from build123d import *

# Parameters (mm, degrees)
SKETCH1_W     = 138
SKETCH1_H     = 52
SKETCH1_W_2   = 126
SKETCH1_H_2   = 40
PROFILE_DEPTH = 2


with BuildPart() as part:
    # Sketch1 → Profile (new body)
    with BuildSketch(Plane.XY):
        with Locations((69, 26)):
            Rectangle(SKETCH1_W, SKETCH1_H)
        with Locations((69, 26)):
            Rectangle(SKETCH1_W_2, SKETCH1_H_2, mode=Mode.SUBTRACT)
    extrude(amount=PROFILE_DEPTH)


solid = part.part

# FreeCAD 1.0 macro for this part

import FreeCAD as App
import Part
import Sketcher


def add_polygon(sketch, points):
    """Adds a closed chain of lines whose ends are joined by coincident constraints."""
    first, n = sketch.GeometryCount, len(points)
    for a, b in zip(points, points[1:] + points[:1]):
        sketch.addGeometry(Part.LineSegment(App.Vector(*a, 0), App.Vector(*b, 0)), False)
    for i in range(n):
        sketch.addConstraint(Sketcher.Constraint("Coincident", first + i, 2, first + (i + 1) % n, 1))

doc = App.newDocument("Part")
params = doc.addObject("Spreadsheet::Sheet", "Params")
for row, (alias, value) in enumerate([
    ("sketch1_width", "138 mm"),
    ("sketch1_width2", "126 mm"),
    ("sketch1_height", "52 mm"),
    ("sketch1_height2", "40 mm"),
    ("pad1_length", "2 mm"),
], start=1):
    params.set(f"A{row}", alias)
    params.set(f"B{row}", "=" + value)
    params.setAlias(f"B{row}", alias)

body = doc.addObject("PartDesign::Body", "Body")

sketch1 = body.newObject("Sketcher::SketchObject", "Sketch")
sketch1.AttachmentSupport = (doc.getObject("XY_Plane"), [""])
sketch1.MapMode = "FlatFace"
add_polygon(sketch1, [(0, 52), (0, 0), (138, 0), (138, 52)])
add_polygon(sketch1, [(132, 6), (6, 6), (6, 46), (132, 46)])
sketch1.addConstraint(Sketcher.Constraint("Vertical", 0))
sketch1.addConstraint(Sketcher.Constraint("Horizontal", 1))
sketch1.addConstraint(Sketcher.Constraint("Vertical", 2))
sketch1.addConstraint(Sketcher.Constraint("Horizontal", 3))
sketch1.addConstraint(Sketcher.Constraint("Horizontal", 4))
sketch1.addConstraint(Sketcher.Constraint("Vertical", 5))
sketch1.addConstraint(Sketcher.Constraint("Horizontal", 6))
sketch1.addConstraint(Sketcher.Constraint("Vertical", 7))
sketch1.addConstraint(Sketcher.Constraint("Coincident", 0, 2, -1, 1))
sketch1.addConstraint(Sketcher.Constraint("DistanceX", 1, 1, 1, 2, 138.0))
sketch1.addConstraint(Sketcher.Constraint("DistanceX", 4, 2, 4, 1, 126.0))
sketch1.addConstraint(Sketcher.Constraint("DistanceY", 0, 2, 0, 1, 52.0))
sketch1.addConstraint(Sketcher.Constraint("DistanceY", 5, 1, 5, 2, 40.0))
sketch1.addConstraint(Sketcher.Constraint("DistanceX", -1, 1, 4, 2, 6.0))
sketch1.addConstraint(Sketcher.Constraint("DistanceY", -1, 1, 4, 2, 6.0))
sketch1.setExpression("Constraints[17]", "Params.sketch1_width")
sketch1.setExpression("Constraints[18]", "Params.sketch1_width2")
sketch1.setExpression("Constraints[19]", "Params.sketch1_height")
sketch1.setExpression("Constraints[20]", "Params.sketch1_height2")
pad1 = body.newObject("PartDesign::Pad", "Pad")
pad1.Profile = sketch1
pad1.setExpression("Length", "Params.pad1_length")

doc.recompute()
